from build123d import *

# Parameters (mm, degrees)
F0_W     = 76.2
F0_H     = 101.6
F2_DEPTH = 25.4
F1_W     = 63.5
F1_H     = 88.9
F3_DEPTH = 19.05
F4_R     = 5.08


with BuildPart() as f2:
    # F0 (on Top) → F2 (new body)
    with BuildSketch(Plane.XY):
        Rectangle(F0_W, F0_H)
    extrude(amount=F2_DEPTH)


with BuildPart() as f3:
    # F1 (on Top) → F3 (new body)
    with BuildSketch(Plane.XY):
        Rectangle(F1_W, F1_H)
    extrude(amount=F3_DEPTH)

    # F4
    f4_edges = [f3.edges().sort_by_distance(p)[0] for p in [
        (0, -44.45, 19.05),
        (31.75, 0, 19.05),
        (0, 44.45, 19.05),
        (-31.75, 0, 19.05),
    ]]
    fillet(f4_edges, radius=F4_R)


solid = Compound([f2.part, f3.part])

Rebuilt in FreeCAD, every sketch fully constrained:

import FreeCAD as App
import Part
import Sketcher

V = App.Vector
Q = App.Units.Quantity


def edges_at(feature, points):
    """Names of the edges that pass closest to the given points."""
    edges = feature.Shape.Edges
    near = lambda p: min(range(len(edges)), key=lambda i: edges[i].distToShape(Part.Vertex(*p))[0])
    return sorted({f"Edge{near(p) + 1}" for p in points})

doc = App.newDocument("Part")
body = doc.addObject("PartDesign::Body", "Body")

# Sketch on XY plane
sketch1 = body.newObject("Sketcher::SketchObject", "Sketch")
sketch1.AttachmentSupport = (doc.getObject("XY_Plane"), [""])
sketch1.MapMode = "FlatFace"
sketch1.addGeometry([
    Part.LineSegment(V(-38, 51, 0), V(-38, -51, 0)),
    Part.LineSegment(V(-38, -51, 0), V(38, -51, 0)),
    Part.LineSegment(V(38, -51, 0), V(38, 51, 0)),
    Part.LineSegment(V(38, 51, 0), V(-38, 51, 0)),
], False)
sketch1.addConstraint([
    Sketcher.Constraint("Coincident", 0, 2, 1, 1),
    Sketcher.Constraint("Coincident", 1, 2, 2, 1),
    Sketcher.Constraint("Coincident", 2, 2, 3, 1),
    Sketcher.Constraint("Coincident", 3, 2, 0, 1),
    Sketcher.Constraint("Vertical", 0),
    Sketcher.Constraint("Horizontal", 1),
    Sketcher.Constraint("Vertical", 2),
    Sketcher.Constraint("Horizontal", 3),
    Sketcher.Constraint("Symmetric", 0, 2, 2, 2, -1, 1),
    Sketcher.Constraint("DistanceX", 1, 1, 1, 2, Q("3 in")),
    Sketcher.Constraint("DistanceY", 0, 2, 0, 1, Q("4 in")),
])
pad1 = body.newObject("PartDesign::Pad", "Pad")
pad1.Profile = sketch1
pad1.Length = Q("1 in")
body2 = doc.addObject("PartDesign::Body", "Body001")

# Sketch on XY plane
sketch2 = body2.newObject("Sketcher::SketchObject", "Sketch001")
sketch2.AttachmentSupport = (doc.getObject("XY_Plane001"), [""])
sketch2.MapMode = "FlatFace"
sketch2.addGeometry([
    Part.LineSegment(V(-32, 44, 0), V(-32, -44, 0)),
    Part.LineSegment(V(-32, -44, 0), V(32, -44, 0)),
    Part.LineSegment(V(32, -44, 0), V(32, 44, 0)),
    Part.LineSegment(V(32, 44, 0), V(-32, 44, 0)),
], False)
sketch2.addConstraint([
    Sketcher.Constraint("Coincident", 0, 2, 1, 1),
    Sketcher.Constraint("Coincident", 1, 2, 2, 1),
    Sketcher.Constraint("Coincident", 2, 2, 3, 1),
    Sketcher.Constraint("Coincident", 3, 2, 0, 1),
    Sketcher.Constraint("Vertical", 0),
    Sketcher.Constraint("Horizontal", 1),
    Sketcher.Constraint("Vertical", 2),
    Sketcher.Constraint("Horizontal", 3),
    Sketcher.Constraint("Symmetric", 0, 2, 2, 2, -1, 1),
    Sketcher.Constraint("DistanceX", 1, 1, 1, 2, Q("2.5 in")),
    Sketcher.Constraint("DistanceY", 0, 2, 0, 1, Q("3.5 in")),
])
pad2 = body2.newObject("PartDesign::Pad", "Pad001")
pad2.Profile = sketch2
pad2.Length = Q("0.75 in")
doc.recompute()

fillet = body2.newObject("PartDesign::Fillet", "Fillet")
fillet.Base = (pad2, edges_at(pad2, [
    (0, -44.45, 19.05),
    (31.75, 0, 19.05),
    (0, 44.45, 19.05),
    (-31.75, 0, 19.05),
]))
fillet.Radius = Q("0.2 in")

doc.recompute()
